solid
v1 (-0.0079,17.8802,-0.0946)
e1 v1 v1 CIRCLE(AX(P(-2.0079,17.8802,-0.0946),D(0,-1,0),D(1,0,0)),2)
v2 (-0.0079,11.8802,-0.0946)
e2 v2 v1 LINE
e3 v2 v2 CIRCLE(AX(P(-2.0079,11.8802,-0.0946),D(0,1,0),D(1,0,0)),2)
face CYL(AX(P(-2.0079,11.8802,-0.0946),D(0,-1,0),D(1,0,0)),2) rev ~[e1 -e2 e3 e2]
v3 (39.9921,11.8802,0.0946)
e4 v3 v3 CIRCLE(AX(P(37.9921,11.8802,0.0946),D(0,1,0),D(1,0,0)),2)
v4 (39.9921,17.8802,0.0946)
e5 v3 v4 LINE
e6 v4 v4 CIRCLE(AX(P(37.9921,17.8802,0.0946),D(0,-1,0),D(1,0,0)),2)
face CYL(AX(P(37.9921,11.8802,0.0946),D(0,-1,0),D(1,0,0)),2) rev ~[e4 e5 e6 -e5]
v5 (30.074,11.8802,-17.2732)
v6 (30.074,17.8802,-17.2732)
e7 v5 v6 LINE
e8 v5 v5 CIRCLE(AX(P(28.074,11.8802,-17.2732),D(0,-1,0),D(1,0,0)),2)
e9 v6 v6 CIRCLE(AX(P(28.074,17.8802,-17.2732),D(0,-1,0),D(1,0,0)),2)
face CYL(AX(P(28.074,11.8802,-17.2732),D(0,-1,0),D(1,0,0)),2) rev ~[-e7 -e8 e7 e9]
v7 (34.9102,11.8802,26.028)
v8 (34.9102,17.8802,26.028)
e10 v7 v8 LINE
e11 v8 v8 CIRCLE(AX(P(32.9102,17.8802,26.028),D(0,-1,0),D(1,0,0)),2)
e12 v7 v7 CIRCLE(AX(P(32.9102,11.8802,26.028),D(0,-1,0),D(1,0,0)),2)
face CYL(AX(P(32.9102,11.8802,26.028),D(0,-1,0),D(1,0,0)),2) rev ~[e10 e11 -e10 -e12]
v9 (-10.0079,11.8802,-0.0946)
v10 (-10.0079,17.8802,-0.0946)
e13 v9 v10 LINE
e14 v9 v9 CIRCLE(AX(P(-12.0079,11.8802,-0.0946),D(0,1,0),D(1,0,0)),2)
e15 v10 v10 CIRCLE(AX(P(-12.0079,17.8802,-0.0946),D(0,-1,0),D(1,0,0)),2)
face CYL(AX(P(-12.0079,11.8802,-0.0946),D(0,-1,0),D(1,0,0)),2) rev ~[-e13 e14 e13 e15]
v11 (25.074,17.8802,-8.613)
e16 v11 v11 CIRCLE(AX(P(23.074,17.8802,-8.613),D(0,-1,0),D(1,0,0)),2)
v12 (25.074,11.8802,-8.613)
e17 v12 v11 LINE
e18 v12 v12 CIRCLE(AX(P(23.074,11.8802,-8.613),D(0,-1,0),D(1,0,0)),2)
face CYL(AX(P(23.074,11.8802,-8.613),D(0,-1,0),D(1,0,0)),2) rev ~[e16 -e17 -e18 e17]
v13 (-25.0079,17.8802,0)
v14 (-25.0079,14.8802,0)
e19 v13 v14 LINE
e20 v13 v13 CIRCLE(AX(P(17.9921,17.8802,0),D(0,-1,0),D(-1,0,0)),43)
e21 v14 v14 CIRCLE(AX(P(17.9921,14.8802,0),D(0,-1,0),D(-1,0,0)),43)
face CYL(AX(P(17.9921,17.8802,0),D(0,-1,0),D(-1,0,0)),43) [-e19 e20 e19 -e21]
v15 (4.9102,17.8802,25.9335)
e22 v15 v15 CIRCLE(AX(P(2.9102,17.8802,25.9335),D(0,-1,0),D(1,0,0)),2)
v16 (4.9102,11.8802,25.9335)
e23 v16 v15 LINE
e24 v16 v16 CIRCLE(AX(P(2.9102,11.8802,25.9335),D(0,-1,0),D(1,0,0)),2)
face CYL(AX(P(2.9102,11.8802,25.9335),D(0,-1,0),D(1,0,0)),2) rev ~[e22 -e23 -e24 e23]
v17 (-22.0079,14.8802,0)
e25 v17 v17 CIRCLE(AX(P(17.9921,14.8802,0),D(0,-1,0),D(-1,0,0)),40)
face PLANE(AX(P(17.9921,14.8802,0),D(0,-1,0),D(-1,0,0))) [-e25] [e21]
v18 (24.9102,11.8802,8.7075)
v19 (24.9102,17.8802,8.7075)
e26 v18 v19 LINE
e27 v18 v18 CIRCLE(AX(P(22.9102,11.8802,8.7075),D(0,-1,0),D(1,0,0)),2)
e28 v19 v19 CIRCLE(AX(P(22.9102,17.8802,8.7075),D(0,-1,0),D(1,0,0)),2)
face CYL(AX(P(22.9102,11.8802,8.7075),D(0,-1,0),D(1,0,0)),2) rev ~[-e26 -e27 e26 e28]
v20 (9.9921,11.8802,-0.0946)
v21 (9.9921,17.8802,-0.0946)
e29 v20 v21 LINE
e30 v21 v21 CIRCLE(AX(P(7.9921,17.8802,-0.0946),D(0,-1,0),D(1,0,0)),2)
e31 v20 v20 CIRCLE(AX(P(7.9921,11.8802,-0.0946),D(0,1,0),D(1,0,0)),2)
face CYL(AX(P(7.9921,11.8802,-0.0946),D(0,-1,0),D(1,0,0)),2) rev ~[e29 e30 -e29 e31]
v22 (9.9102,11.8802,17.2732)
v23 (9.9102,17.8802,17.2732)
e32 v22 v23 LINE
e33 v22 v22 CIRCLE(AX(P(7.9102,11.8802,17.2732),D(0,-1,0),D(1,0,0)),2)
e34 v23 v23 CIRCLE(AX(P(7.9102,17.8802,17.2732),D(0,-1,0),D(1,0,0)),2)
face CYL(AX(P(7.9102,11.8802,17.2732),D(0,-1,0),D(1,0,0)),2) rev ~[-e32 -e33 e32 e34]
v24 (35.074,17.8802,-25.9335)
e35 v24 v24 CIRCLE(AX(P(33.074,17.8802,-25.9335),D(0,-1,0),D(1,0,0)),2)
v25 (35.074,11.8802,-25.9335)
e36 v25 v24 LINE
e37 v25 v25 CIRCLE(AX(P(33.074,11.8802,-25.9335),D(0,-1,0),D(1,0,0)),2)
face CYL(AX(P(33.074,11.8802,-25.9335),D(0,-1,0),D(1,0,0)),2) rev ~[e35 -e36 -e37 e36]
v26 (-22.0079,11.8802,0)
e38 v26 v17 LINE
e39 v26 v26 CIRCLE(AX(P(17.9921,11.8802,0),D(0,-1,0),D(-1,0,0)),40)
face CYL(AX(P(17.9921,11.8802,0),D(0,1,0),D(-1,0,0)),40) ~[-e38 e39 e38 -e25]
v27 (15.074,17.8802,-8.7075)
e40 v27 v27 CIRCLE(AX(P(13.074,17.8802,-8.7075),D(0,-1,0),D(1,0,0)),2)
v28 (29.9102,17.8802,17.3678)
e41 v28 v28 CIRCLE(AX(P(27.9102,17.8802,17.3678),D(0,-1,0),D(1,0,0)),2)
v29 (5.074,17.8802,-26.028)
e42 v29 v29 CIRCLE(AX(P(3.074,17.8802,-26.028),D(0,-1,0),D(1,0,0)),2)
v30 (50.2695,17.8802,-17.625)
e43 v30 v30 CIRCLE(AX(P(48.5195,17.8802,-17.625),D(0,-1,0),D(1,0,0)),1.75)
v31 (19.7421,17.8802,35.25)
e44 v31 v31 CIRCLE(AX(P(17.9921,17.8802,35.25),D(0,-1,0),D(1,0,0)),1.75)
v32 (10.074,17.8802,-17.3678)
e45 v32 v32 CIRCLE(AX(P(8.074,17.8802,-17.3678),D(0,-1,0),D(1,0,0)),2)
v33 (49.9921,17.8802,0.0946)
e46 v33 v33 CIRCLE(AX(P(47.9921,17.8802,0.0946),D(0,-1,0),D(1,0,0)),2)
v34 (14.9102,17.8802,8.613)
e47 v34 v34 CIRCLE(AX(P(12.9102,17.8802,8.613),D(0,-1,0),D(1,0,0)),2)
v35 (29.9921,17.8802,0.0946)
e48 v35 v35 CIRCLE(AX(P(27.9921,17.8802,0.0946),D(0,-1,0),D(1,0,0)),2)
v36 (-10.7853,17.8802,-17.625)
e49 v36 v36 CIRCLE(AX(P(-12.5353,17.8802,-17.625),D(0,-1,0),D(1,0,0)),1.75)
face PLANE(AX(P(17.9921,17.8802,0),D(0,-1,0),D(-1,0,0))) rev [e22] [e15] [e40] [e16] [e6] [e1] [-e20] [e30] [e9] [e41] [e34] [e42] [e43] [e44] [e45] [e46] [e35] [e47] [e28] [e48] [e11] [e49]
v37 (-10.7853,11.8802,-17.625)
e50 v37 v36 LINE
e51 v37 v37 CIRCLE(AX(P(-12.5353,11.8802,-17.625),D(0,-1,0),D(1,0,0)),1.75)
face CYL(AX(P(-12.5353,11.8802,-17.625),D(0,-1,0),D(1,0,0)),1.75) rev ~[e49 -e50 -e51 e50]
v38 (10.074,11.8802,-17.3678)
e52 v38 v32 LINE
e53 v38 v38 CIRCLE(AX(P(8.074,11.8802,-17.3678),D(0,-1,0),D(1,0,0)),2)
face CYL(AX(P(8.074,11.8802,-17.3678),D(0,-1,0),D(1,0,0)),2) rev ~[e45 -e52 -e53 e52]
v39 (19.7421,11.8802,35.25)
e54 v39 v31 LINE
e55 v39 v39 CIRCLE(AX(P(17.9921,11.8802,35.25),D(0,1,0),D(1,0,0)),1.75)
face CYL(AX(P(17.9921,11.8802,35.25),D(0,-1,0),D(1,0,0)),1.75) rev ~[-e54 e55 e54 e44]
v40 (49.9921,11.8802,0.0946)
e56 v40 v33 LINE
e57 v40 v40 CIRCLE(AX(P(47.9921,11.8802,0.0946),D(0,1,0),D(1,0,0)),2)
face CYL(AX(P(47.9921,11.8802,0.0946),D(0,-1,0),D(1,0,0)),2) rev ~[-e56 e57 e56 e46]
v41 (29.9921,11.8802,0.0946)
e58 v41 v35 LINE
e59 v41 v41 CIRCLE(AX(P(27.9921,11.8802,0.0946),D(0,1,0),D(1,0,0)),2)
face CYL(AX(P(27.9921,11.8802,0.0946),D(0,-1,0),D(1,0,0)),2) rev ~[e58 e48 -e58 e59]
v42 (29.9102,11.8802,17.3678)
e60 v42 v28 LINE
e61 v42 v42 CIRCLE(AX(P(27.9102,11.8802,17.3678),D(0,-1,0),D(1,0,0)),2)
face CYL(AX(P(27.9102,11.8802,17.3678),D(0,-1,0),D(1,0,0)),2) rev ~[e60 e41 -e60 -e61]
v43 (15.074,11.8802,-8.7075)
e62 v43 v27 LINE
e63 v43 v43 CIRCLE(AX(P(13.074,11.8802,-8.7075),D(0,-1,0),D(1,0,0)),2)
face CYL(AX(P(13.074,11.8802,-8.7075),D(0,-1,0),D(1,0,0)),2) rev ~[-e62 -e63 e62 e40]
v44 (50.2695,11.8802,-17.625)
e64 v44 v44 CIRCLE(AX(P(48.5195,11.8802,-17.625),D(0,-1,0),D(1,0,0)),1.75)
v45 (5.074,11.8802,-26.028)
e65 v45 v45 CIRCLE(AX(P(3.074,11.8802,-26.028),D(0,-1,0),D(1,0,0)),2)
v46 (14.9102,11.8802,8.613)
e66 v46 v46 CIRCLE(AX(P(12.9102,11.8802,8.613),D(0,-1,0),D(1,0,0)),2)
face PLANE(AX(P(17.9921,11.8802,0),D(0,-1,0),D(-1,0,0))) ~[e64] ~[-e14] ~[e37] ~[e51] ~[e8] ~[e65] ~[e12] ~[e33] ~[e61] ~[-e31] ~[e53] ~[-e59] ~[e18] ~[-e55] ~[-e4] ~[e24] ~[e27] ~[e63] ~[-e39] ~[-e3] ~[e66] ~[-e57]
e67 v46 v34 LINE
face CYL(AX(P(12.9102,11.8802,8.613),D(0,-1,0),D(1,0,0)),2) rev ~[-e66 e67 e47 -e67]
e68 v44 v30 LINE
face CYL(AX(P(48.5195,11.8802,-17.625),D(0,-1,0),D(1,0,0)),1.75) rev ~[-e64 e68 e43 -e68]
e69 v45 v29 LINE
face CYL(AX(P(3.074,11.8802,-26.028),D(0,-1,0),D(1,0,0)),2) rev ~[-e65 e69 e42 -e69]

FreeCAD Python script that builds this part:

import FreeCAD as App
import Part
import Sketcher
Q = App.Units.Quantity

doc = App.newDocument("Part")
body = doc.addObject("PartDesign::Body", "Body")

# Sketch on XY plane
sketch1 = doc.addObject("Sketcher::SketchObject", "Sketch")
body.addObject(sketch1)
sketch1.AttachmentSupport = (doc.XY_Plane, [""])
sketch1.MapMode = "FlatFace"
sketch1.addGeometry([
    Part.LineSegment(App.Vector(17.9921, 17.8802, 0), App.Vector(-25.0079, 17.8802, 0)),  # 0
    Part.LineSegment(App.Vector(-25.0079, 17.8802, 0), App.Vector(-25.0079, 14.8802, 0)),  # 1
    Part.LineSegment(App.Vector(-25.0079, 14.8802, 0), App.Vector(-22.0079, 14.8802, 0)),  # 2
    Part.LineSegment(App.Vector(-22.0079, 14.8802, 0), App.Vector(-22.0079, 11.8802, 0)),  # 3
    Part.LineSegment(App.Vector(-22.0079, 11.8802, 0), App.Vector(17.9921, 11.8802, 0)),  # 4
    Part.LineSegment(App.Vector(17.9921, 11.8802, 0), App.Vector(17.9921, 17.8802, 0)),  # 5
], False)
sketch1.addGeometry(Part.LineSegment(App.Vector(17.9921, 17.8802, 0), App.Vector(17.9921, 11.8802, 0)), True)  # axis
sketch1.addConstraint([
    Sketcher.Constraint("Coincident", 0, 2, 1, 1),
    Sketcher.Constraint("Coincident", 1, 2, 2, 1),
    Sketcher.Constraint("Coincident", 2, 2, 3, 1),
    Sketcher.Constraint("Coincident", 3, 2, 4, 1),
    Sketcher.Constraint("Coincident", 4, 2, 5, 1),
    Sketcher.Constraint("Coincident", 5, 2, 0, 1),
    Sketcher.Constraint("Horizontal", 0),
    Sketcher.Constraint("Vertical", 1),
    Sketcher.Constraint("Horizontal", 2),
    Sketcher.Constraint("Vertical", 3),
    Sketcher.Constraint("Horizontal", 4),
    Sketcher.Constraint("Vertical", 5),
    Sketcher.Constraint("Vertical", 6),
    Sketcher.Constraint("Coincident", 6, 1, 5, 2),
    Sketcher.Constraint("Horizontal", 3, 2, 6, 2),
    Sketcher.Constraint("Equal", 2, 1),
    Sketcher.Constraint("Equal", 1, 3),
    Sketcher.Constraint("DistanceX", 2, 1, 2, 2, Q("3 mm")),
    Sketcher.Constraint("DistanceX", 4, 1, 4, 2, Q("40 mm")),
    Sketcher.Constraint("DistanceX", 0, 2, -1, 1, Q("25.008 mm")),
    Sketcher.Constraint("DistanceY", -1, 1, 0, 2, Q("17.8802 mm")),
])
revolution = doc.addObject("PartDesign::Revolution", "Revolution")
body.addObject(revolution)
revolution.Profile = sketch1
revolution.ReferenceAxis = (sketch1, ["Axis0"])
revolution.Angle = 360

# Sketch on XZ plane
sketch2 = doc.addObject("Sketcher::SketchObject", "Sketch001")
body.addObject(sketch2)
sketch2.AttachmentSupport = (doc.XZ_Plane, [""])
sketch2.MapMode = "FlatFace"
sketch2.AttachmentOffset = App.Placement(App.Vector(0, 0, -11.8802), App.Rotation())
sketch2.addGeometry([
    Part.Circle(App.Vector(47.9921, 0.0946, 0), App.Vector(0, 0, 1), 2),  # 0
    Part.Circle(App.Vector(-12.0079, -0.0946, 0), App.Vector(0, 0, 1), 2),  # 1
    Part.Circle(App.Vector(17.9921, 35.25, 0), App.Vector(0, 0, 1), 1.75),  # 2
    Part.Circle(App.Vector(37.9921, 0.0946, 0), App.Vector(0, 0, 1), 2),  # 3
    Part.Circle(App.Vector(-2.0079, -0.0946, 0), App.Vector(0, 0, 1), 2),  # 4
    Part.Circle(App.Vector(7.9921, -0.0946, 0), App.Vector(0, 0, 1), 2),  # 5
    Part.Circle(App.Vector(27.9921, 0.0946, 0), App.Vector(0, 0, 1), 2),  # 6
    Part.Circle(App.Vector(22.9102, 8.7075, 0), App.Vector(0, 0, 1), 2),  # 7
    Part.Circle(App.Vector(27.9102, 17.3678, 0), App.Vector(0, 0, 1), 2),  # 8
    Part.Circle(App.Vector(32.9102, 26.028, 0), App.Vector(0, 0, 1), 2),  # 9
    Part.Circle(App.Vector(12.9102, 8.613, 0), App.Vector(0, 0, 1), 2),  # 10
    Part.Circle(App.Vector(7.9102, 17.2732, 0), App.Vector(0, 0, 1), 2),  # 11
    Part.Circle(App.Vector(2.9102, 25.9335, 0), App.Vector(0, 0, 1), 2),  # 12
    Part.Circle(App.Vector(13.074, -8.7075, 0), App.Vector(0, 0, 1), 2),  # 13
    Part.Circle(App.Vector(8.074, -17.3678, 0), App.Vector(0, 0, 1), 2),  # 14
    Part.Circle(App.Vector(3.074, -26.028, 0), App.Vector(0, 0, 1), 2),  # 15
    Part.Circle(App.Vector(23.074, -8.613, 0), App.Vector(0, 0, 1), 2),  # 16
    Part.Circle(App.Vector(28.074, -17.2732, 0), App.Vector(0, 0, 1), 2),  # 17
    Part.Circle(App.Vector(33.074, -25.9335, 0), App.Vector(0, 0, 1), 2),  # 18
    Part.Circle(App.Vector(-12.5353, -17.625, 0), App.Vector(0, 0, 1), 1.75),  # 19
    Part.Circle(App.Vector(48.5195, -17.625, 0), App.Vector(0, 0, 1), 1.75),  # 20
], False)
sketch2.addConstraint([
    Sketcher.Constraint("Equal", 0, 1),
    Sketcher.Constraint("Equal", 1, 3),
    Sketcher.Constraint("Equal", 3, 4),
    Sketcher.Constraint("Equal", 4, 5),
    Sketcher.Constraint("Equal", 5, 6),
    Sketcher.Constraint("Equal", 6, 7),
    Sketcher.Constraint("Equal", 7, 8),
    Sketcher.Constraint("Equal", 8, 9),
    Sketcher.Constraint("Equal", 9, 10),
    Sketcher.Constraint("Equal", 10, 11),
    Sketcher.Constraint("Equal", 11, 12),
    Sketcher.Constraint("Equal", 12, 13),
    Sketcher.Constraint("Equal", 13, 14),
    Sketcher.Constraint("Equal", 14, 15),
    Sketcher.Constraint("Equal", 15, 16),
    Sketcher.Constraint("Equal", 16, 17),
    Sketcher.Constraint("Equal", 17, 18),
    Sketcher.Constraint("Equal", 2, 19),
    Sketcher.Constraint("Equal", 19, 20),
    Sketcher.Constraint("Horizontal", 0, 3, 3, 3),
    Sketcher.Constraint("Horizontal", 1, 3, 4, 3),
    Sketcher.Constraint("Horizontal", 4, 3, 5, 3),
    Sketcher.Constraint("Horizontal", 3, 3, 6, 3),
    Sketcher.Constraint("Horizontal", 19, 3, 20, 3),
    Sketcher.Constraint("Diameter", 0, Q("4 mm")),
    Sketcher.Constraint("Diameter", 2, Q("3.5 mm")),
    Sketcher.Constraint("DistanceX", 3, 3, 0, 3, Q("10 mm")),
    Sketcher.Constraint("DistanceX", 1, 3, 4, 3, Q("10 mm")),
    Sketcher.Constraint("DistanceX", 4, 3, 5, 3, Q("10 mm")),
    Sketcher.Constraint("DistanceX", 5, 3, 2, 3, Q("10 mm")),
    Sketcher.Constraint("DistanceX", 6, 3, 3, 3, Q("10 mm")),
    Sketcher.Constraint("DistanceX", 2, 3, 6, 3, Q("10 mm")),
    Sketcher.Constraint("DistanceX", 7, 3, 9, 3, Q("10 mm")),
    Sketcher.Constraint("DistanceX", 10, 3, 7, 3, Q("10 mm")),
    Sketcher.Constraint("DistanceX", 12, 3, 10, 3, Q("10 mm")),
    Sketcher.Constraint("DistanceX", 15, 3, 13, 3, Q("10 mm")),
    Sketcher.Constraint("DistanceX", 13, 3, 16, 3, Q("10 mm")),
    Sketcher.Constraint("DistanceX", 16, 3, 18, 3, Q("10 mm")),
    Sketcher.Constraint("DistanceX", 7, 3, 8, 3, Q("5 mm")),
    Sketcher.Constraint("DistanceX", 11, 3, 10, 3, Q("5 mm")),
    Sketcher.Constraint("DistanceX", 14, 3, 13, 3, Q("5 mm")),
    Sketcher.Constraint("DistanceX", 16, 3, 17, 3, Q("5 mm")),
    Sketcher.Constraint("DistanceY", -1, 1, 2, 3, Q("35.25 mm")),
    Sketcher.Constraint("DistanceX", -1, 1, 0, 3, Q("47.992 mm")),
    Sketcher.Constraint("DistanceY", -1, 1, 9, 3, Q("26.028 mm")),
    Sketcher.Constraint("DistanceY", -1, 1, 10, 3, Q("8.613 mm")),
    Sketcher.Constraint("DistanceX", -1, 1, 13, 3, Q("13.074 mm")),
    Sketcher.Constraint("DistanceY", 15, 3, -1, 1, Q("26.028 mm")),
    Sketcher.Constraint("DistanceY", 16, 3, -1, 1, Q("8.613 mm")),
    Sketcher.Constraint("DistanceY", 19, 3, -1, 1, Q("17.625 mm")),
    Sketcher.Constraint("DistanceX", 7, 3, 6, 3, Q("5.082 mm")),
    Sketcher.Constraint("DistanceY", 6, 3, 7, 3, Q("8.613 mm")),
    Sketcher.Constraint("DistanceY", 5, 3, 7, 3, Q("8.802 mm")),
    Sketcher.Constraint("DistanceY", 7, 3, 12, 3, Q("17.226 mm")),
    Sketcher.Constraint("DistanceY", 13, 3, 5, 3, Q("8.613 mm")),
    Sketcher.Constraint("DistanceY", 18, 3, 13, 3, Q("17.226 mm")),
    Sketcher.Constraint("DistanceY", -1, 1, 0, 3, Q("0.0946 mm")),
    Sketcher.Constraint("DistanceY", -1, 1, 8, 3, Q("17.3678 mm")),
    Sketcher.Constraint("DistanceY", -1, 1, 11, 3, Q("17.2732 mm")),
    Sketcher.Constraint("DistanceY", 14, 3, -1, 1, Q("17.3678 mm")),
    Sketcher.Constraint("DistanceY", 17, 3, -1, 1, Q("17.2732 mm")),
    Sketcher.Constraint("DistanceX", 19, 3, -1, 1, Q("12.5353 mm")),
    Sketcher.Constraint("DistanceX", -1, 1, 20, 3, Q("48.5195 mm")),
])
pocket1 = doc.addObject("PartDesign::Pocket", "Pocket")
body.addObject(pocket1)
pocket1.Profile = sketch2
pocket1.Type = "ThroughAll"

doc.recompute()
